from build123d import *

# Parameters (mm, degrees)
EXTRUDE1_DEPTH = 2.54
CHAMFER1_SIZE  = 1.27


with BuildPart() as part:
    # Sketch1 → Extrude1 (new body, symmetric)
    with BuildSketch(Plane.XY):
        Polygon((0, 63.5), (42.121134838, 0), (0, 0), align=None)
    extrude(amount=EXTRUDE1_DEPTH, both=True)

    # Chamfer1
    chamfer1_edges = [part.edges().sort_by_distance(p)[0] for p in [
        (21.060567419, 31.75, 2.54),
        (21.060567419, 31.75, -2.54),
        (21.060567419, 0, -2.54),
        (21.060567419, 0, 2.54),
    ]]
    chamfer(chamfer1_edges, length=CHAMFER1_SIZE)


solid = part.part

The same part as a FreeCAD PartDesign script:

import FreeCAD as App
import Part
import Sketcher
from FreeCAD import Vector
Q = App.Units.Quantity


def edges_at(feature, points):
    """Names of the edges that pass closest to the given points."""
    edges = feature.Shape.Edges
    near = lambda p: min(range(len(edges)), key=lambda i: edges[i].distToShape(Part.Vertex(*p))[0])
    return sorted({f"Edge{near(p) + 1}" for p in points})


def add_polygon(sketch, points):
    """Adds a closed chain of lines whose ends are joined by coincident constraints."""
    first, n = sketch.GeometryCount, len(points)
    for a, b in zip(points, points[1:] + points[:1]):
        sketch.addGeometry(Part.LineSegment(App.Vector(*a, 0), App.Vector(*b, 0)), False)
    for i in range(n):
        sketch.addConstraint(Sketcher.Constraint("Coincident", first + i, 2, first + (i + 1) % n, 1))

doc = App.newDocument("Part")
body = doc.addObject("PartDesign::Body", "Body")

# Sketch on XY plane
sketch1 = body.newObject("Sketcher::SketchObject", "Sketch")
sketch1.AttachmentSupport = (doc.getObject("XY_Plane"), [""])
sketch1.MapMode = "FlatFace"
add_polygon(sketch1, [(42, 0), (0, 64), (0, 0)])  # lines 0-2
sketch1.addConstraint(Sketcher.Constraint("Vertical", 1))
sketch1.addConstraint(Sketcher.Constraint("Horizontal", 2))
sketch1.addConstraint(Sketcher.Constraint("Coincident", 1, 2, -1, 1))
sketch1.addConstraint(Sketcher.Constraint("Distance", 0, Q("3 in")))
sketch1.addConstraint(Sketcher.Constraint("DistanceY", 1, 2, 1, 1, Q("2.5 in")))
pad1 = body.newObject("PartDesign::Pad", "Pad")
pad1.Profile = sketch1
pad1.Length = Q("0.2 in")
pad1.Midplane = True
doc.recompute()

chamfer = body.newObject("PartDesign::Chamfer", "Chamfer")
chamfer.Base = (pad1, edges_at(pad1, [
    (21.061, 31.75, 2.54),
    (21.061, 31.75, -2.54),
    (21.061, 0, -2.54),
    (21.061, 0, 2.54),
]))
chamfer.Size = Q("0.05 in")

doc.recompute()
